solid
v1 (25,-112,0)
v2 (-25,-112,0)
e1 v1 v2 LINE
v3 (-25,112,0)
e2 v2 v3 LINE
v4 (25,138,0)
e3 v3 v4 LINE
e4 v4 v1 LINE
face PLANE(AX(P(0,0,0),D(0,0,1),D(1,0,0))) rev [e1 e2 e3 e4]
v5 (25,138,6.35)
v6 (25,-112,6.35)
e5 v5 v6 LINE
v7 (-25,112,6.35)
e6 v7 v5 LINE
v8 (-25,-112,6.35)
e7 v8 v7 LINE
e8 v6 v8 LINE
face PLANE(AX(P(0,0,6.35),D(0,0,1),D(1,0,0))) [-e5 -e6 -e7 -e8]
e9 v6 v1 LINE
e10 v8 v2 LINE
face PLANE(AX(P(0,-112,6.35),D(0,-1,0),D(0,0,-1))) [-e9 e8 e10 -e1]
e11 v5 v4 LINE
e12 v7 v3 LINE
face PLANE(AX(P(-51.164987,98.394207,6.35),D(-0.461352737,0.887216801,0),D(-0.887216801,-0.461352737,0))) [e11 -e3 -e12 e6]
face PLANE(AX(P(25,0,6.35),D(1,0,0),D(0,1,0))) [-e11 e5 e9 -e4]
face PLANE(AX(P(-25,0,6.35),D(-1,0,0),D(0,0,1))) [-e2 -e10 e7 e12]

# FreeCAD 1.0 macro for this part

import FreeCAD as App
import Part
import Sketcher


def add_polygon(sketch, points):
    """Adds a closed chain of lines whose ends are joined by coincident constraints."""
    first, n = sketch.GeometryCount, len(points)
    for a, b in zip(points, points[1:] + points[:1]):
        sketch.addGeometry(Part.LineSegment(App.Vector(*a, 0), App.Vector(*b, 0)), False)
    for i in range(n):
        sketch.addConstraint(Sketcher.Constraint("Coincident", first + i, 2, first + (i + 1) % n, 1))

doc = App.newDocument("Part")
body = doc.addObject("PartDesign::Body", "Body")

sketch1 = body.newObject("Sketcher::SketchObject", "Sketch")
sketch1.AttachmentSupport = (doc.getObject("XY_Plane"), [""])
sketch1.MapMode = "FlatFace"
add_polygon(sketch1, [(-25, -112), (25, -112), (25, 138), (-25, 112)])
sketch1.addConstraint([
    Sketcher.Constraint("Horizontal", 0),
    Sketcher.Constraint("Vertical", 1),
    Sketcher.Constraint("Vertical", 3),
    Sketcher.Constraint("Symmetric", 0, 2, 2, 2, -1, 1),
    Sketcher.Constraint("DistanceX", 0, 1, 0, 2, 50.0),
    Sketcher.Constraint("DistanceY", 1, 1, 1, 2, 250.0),
    Sketcher.Constraint("DistanceY", 3, 2, 3, 1, 224.0),
])
pad1 = body.newObject("PartDesign::Pad", "Pad")
pad1.Profile = sketch1
pad1.Length = 6.35

doc.recompute()
